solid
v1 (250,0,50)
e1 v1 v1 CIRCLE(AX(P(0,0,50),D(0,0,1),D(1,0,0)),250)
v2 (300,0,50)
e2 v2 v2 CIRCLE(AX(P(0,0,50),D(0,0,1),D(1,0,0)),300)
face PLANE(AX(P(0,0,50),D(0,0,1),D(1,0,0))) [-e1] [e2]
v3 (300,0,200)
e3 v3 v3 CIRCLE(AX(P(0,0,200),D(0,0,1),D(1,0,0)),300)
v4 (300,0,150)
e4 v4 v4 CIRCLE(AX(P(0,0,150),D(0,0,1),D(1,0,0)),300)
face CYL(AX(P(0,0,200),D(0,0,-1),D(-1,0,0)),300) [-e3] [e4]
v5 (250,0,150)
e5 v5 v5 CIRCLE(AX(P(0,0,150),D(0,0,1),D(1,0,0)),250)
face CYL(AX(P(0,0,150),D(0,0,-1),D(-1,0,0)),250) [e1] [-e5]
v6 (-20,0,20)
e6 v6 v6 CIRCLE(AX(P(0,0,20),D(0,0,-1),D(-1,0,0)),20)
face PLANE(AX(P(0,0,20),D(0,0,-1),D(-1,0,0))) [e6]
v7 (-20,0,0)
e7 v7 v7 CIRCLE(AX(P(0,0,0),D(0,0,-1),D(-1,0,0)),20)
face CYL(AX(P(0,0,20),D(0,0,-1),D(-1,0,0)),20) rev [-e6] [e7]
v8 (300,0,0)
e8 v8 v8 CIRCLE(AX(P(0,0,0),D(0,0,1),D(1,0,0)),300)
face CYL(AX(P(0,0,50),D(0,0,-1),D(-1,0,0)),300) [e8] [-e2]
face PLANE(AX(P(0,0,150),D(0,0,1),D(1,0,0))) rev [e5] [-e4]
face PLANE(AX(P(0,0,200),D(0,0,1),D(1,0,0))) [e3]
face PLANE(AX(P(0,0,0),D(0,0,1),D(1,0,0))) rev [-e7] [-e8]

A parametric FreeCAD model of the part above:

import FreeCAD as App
import Part
import Sketcher
from FreeCAD import Vector
Q = App.Units.Quantity

doc = App.newDocument("Part")
params = doc.addObject("Spreadsheet::Sheet", "Params")
for row, (alias, value) in enumerate([
    ("sketch1_diameter", "600 mm"),
    ("pad1_length", "50 mm"),
    ("sketch2_diameter", "40 mm"),
    ("pocket1_length", "20 mm"),
    ("sketch3_diameter", "500 mm"),
    ("pad2_length", "100 mm"),
    ("sketch4_diameter", "600 mm"),
    ("pad3_length", "50 mm"),
], start=1):
    params.set(f"A{row}", alias)
    params.set(f"B{row}", "=" + value)
    params.setAlias(f"B{row}", alias)

body = doc.addObject("PartDesign::Body", "Body")

sketch1 = body.newObject("Sketcher::SketchObject", "Sketch")
sketch1.AttachmentSupport = (doc.getObject("XY_Plane"), [""])
sketch1.MapMode = "FlatFace"
sketch1.addGeometry(Part.Circle(Vector(0, 0, 0), Vector(0, 0, 1), 300), False)
sketch1.addConstraint(Sketcher.Constraint("Coincident", 0, 3, -1, 1))
sketch1.addConstraint(Sketcher.Constraint("Diameter", 0, Q("600 mm")))
sketch1.setExpression("Constraints[1]", "Params.sketch1_diameter")
pad1 = body.newObject("PartDesign::Pad", "Pad")
pad1.Profile = sketch1
pad1.setExpression("Length", "Params.pad1_length")

sketch2 = body.newObject("Sketcher::SketchObject", "Sketch001")
sketch2.AttachmentSupport = (doc.getObject("XY_Plane"), [""])
sketch2.MapMode = "FlatFace"
sketch2.addGeometry(Part.Circle(Vector(0, 0, 0), Vector(0, 0, 1), 20), False)
sketch2.addConstraint(Sketcher.Constraint("Coincident", 0, 3, -1, 1))
sketch2.addConstraint(Sketcher.Constraint("Diameter", 0, Q("40 mm")))
sketch2.setExpression("Constraints[1]", "Params.sketch2_diameter")
pocket1 = body.newObject("PartDesign::Pocket", "Pocket")
pocket1.Profile = sketch2
pocket1.setExpression("Length", "Params.pocket1_length")
pocket1.Reversed = True

sketch3 = body.newObject("Sketcher::SketchObject", "Sketch002")
sketch3.AttachmentSupport = (doc.getObject("XY_Plane"), [""])
sketch3.MapMode = "FlatFace"
sketch3.AttachmentOffset = App.Placement(Vector(0, 0, 50), App.Rotation())
sketch3.addGeometry(Part.Circle(Vector(0, 0, 0), Vector(0, 0, 1), 250), False)
sketch3.addConstraint(Sketcher.Constraint("Coincident", 0, 3, -1, 1))
sketch3.addConstraint(Sketcher.Constraint("Diameter", 0, Q("500 mm")))
sketch3.setExpression("Constraints[1]", "Params.sketch3_diameter")
pad2 = body.newObject("PartDesign::Pad", "Pad001")
pad2.Profile = sketch3
pad2.setExpression("Length", "Params.pad2_length")

sketch4 = body.newObject("Sketcher::SketchObject", "Sketch003")
sketch4.AttachmentSupport = (doc.getObject("XY_Plane"), [""])
sketch4.MapMode = "FlatFace"
sketch4.AttachmentOffset = App.Placement(Vector(0, 0, 150), App.Rotation())
sketch4.addGeometry(Part.Circle(Vector(0, 0, 0), Vector(0, 0, 1), 300), False)
sketch4.addConstraint(Sketcher.Constraint("Coincident", 0, 3, -1, 1))
sketch4.addConstraint(Sketcher.Constraint("Diameter", 0, Q("600 mm")))
sketch4.setExpression("Constraints[1]", "Params.sketch4_diameter")
pad3 = body.newObject("PartDesign::Pad", "Pad002")
pad3.Profile = sketch4
pad3.setExpression("Length", "Params.pad3_length")

doc.recompute()
